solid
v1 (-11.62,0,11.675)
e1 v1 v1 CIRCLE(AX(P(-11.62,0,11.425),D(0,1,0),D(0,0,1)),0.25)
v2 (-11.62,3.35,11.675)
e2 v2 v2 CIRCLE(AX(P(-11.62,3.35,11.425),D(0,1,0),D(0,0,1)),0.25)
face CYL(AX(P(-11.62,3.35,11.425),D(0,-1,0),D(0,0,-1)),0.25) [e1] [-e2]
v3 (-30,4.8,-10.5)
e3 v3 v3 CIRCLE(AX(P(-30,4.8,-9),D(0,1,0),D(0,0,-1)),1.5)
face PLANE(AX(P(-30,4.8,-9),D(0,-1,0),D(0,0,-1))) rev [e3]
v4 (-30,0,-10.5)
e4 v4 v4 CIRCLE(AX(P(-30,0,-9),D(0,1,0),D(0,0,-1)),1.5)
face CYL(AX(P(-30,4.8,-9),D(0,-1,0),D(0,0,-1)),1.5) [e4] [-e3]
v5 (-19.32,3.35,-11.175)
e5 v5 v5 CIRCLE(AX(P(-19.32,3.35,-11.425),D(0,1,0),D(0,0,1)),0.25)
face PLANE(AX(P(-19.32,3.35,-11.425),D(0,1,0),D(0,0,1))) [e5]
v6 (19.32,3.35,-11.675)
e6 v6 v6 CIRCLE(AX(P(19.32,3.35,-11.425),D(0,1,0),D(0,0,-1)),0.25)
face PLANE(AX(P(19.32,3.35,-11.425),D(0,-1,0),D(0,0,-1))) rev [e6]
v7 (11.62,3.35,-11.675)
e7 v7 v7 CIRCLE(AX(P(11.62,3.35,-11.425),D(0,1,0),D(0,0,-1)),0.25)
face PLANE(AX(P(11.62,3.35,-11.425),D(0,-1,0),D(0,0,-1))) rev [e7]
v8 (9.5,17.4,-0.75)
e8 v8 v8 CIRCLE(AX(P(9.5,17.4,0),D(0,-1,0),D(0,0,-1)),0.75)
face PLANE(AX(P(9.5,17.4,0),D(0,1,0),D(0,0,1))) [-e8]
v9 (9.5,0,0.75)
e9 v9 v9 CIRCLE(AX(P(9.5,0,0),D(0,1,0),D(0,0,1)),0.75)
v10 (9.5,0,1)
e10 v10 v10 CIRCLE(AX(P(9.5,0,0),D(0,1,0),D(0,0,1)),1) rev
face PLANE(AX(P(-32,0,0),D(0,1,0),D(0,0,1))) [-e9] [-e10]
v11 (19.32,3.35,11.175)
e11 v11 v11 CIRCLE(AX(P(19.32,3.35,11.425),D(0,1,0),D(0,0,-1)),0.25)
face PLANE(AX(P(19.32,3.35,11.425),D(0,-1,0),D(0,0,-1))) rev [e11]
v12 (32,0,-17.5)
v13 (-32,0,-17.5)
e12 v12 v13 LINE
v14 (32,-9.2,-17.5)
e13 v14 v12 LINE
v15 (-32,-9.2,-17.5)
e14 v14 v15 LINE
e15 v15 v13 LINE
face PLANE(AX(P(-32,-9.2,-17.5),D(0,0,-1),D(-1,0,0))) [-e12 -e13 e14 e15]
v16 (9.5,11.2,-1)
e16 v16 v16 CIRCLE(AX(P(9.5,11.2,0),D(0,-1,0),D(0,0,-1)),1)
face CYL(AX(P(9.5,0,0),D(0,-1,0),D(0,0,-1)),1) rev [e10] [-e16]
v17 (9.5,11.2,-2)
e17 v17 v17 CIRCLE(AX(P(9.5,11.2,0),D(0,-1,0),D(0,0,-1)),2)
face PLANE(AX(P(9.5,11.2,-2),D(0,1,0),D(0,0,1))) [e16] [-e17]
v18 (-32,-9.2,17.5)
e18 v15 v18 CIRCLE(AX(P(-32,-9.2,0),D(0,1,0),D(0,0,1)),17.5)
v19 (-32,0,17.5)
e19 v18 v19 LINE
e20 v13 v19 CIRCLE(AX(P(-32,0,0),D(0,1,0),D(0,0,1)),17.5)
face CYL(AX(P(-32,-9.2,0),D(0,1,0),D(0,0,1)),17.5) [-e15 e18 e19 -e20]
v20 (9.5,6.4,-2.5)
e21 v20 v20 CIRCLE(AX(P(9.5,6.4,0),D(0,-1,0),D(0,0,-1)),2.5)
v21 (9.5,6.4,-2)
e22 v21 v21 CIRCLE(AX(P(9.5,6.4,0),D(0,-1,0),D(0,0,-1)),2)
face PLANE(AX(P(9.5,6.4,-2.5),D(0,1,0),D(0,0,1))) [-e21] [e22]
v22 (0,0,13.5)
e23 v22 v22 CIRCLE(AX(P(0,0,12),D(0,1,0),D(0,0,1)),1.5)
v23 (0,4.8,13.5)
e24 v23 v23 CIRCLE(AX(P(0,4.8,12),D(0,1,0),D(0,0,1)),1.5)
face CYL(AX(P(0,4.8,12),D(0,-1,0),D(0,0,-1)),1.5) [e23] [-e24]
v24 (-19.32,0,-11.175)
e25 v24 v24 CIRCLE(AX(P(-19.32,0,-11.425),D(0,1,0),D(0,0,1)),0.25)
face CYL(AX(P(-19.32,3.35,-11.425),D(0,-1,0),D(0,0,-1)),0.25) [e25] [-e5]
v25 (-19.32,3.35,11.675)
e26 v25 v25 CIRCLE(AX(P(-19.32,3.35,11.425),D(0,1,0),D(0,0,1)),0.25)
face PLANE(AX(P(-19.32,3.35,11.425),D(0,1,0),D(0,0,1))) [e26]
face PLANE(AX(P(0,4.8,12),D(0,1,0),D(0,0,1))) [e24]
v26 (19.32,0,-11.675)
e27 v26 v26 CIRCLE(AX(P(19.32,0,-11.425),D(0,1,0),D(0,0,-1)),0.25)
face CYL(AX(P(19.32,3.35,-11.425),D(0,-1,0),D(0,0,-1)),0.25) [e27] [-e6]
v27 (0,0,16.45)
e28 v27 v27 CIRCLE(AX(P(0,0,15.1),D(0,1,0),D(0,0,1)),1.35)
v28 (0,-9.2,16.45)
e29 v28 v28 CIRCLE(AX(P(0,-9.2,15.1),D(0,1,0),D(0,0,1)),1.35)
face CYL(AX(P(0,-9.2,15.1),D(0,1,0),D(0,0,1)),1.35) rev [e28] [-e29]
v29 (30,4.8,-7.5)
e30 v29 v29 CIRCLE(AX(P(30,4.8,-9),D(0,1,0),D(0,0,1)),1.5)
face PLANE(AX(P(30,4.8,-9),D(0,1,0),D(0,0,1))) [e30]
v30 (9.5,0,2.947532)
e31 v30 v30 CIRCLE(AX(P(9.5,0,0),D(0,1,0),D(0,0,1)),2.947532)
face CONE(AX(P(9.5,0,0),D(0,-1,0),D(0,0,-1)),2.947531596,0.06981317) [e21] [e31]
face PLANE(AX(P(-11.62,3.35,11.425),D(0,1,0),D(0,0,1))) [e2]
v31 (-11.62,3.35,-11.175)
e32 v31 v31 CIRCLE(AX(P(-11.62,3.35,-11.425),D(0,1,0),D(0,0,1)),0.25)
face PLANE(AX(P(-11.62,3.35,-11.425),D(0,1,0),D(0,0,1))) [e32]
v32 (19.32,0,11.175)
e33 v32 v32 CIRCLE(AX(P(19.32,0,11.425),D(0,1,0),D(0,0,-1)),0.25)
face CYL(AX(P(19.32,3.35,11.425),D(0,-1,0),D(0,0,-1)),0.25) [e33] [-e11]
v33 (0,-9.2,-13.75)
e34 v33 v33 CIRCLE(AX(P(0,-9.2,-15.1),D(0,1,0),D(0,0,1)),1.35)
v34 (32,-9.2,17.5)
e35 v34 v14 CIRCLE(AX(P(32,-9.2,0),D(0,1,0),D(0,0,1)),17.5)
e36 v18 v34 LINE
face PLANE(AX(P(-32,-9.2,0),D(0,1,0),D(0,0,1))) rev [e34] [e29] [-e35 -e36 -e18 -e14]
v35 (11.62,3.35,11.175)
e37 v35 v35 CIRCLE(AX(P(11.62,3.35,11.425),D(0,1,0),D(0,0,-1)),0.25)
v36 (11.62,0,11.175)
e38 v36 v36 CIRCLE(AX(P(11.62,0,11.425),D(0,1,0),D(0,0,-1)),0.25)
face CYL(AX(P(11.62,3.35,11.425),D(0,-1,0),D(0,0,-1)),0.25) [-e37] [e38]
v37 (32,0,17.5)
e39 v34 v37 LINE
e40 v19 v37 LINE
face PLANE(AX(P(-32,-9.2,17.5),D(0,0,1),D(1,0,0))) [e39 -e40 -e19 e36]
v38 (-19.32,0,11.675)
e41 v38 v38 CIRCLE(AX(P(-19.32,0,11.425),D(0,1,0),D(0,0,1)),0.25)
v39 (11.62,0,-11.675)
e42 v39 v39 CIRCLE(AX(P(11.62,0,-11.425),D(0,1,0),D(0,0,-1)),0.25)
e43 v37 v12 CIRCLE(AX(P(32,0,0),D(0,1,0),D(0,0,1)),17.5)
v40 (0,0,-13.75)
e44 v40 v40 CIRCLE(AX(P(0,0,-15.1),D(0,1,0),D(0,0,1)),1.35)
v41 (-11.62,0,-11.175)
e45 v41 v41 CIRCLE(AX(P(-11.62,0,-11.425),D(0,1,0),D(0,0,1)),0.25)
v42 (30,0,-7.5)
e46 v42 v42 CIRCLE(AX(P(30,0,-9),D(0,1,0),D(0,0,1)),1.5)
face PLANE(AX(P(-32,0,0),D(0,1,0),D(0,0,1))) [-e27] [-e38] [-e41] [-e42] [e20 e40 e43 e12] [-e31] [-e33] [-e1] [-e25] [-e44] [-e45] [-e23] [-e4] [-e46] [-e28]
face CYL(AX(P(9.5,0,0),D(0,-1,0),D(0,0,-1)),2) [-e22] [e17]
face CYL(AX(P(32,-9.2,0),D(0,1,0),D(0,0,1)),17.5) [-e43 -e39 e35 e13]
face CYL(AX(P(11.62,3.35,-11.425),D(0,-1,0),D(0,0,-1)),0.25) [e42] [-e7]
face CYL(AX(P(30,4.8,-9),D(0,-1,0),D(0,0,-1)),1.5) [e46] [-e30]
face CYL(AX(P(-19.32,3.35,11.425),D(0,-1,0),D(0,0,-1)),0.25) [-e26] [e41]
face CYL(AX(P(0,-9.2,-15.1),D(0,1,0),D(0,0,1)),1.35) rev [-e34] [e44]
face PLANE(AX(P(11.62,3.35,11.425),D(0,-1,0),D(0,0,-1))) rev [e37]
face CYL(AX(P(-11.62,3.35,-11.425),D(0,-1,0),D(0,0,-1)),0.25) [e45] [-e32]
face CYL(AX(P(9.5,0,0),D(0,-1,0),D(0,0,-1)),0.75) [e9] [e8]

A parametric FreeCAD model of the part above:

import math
import FreeCAD as App
import Part
import Sketcher

V = App.Vector
Q = App.Units.Quantity


def add_polygon(sketch, points):
    """Adds a closed chain of lines whose ends are joined by coincident constraints."""
    first, n = sketch.GeometryCount, len(points)
    for a, b in zip(points, points[1:] + points[:1]):
        sketch.addGeometry(Part.LineSegment(App.Vector(*a, 0), App.Vector(*b, 0)), False)
    for i in range(n):
        sketch.addConstraint(Sketcher.Constraint("Coincident", first + i, 2, first + (i + 1) % n, 1))

doc = App.newDocument("Part")
body = doc.addObject("PartDesign::Body", "Body")

sketch1 = body.newObject("Sketcher::SketchObject", "Sketch")
sketch1.AttachmentSupport = (doc.getObject("XZ_Plane"), [""])
sketch1.MapMode = "FlatFace"
sketch1.addGeometry([
    Part.LineSegment(V(32, -18, 0), V(-32, -18, 0)),
    Part.ArcOfCircle(Part.Circle(V(-32, 0, 0), V(0, 0, 1), 18), math.radians(90), math.radians(270)),
    Part.LineSegment(V(-32, 18, 0), V(32, 18, 0)),
    Part.ArcOfCircle(Part.Circle(V(32, 0, 0), V(0, 0, 1), 18), math.radians(-90), math.radians(90)),
], False)
sketch1.addConstraint([
    Sketcher.Constraint("Tangent", 0, 2, 1, 2),
    Sketcher.Constraint("Tangent", 1, 1, 2, 1),
    Sketcher.Constraint("Tangent", 2, 2, 3, 2),
    Sketcher.Constraint("Tangent", 3, 1, 0, 1),
    Sketcher.Constraint("Horizontal", 0),
    Sketcher.Constraint("Horizontal", 2),
    Sketcher.Constraint("Symmetric", 1, 3, 3, 3, -1, 1),
    Sketcher.Constraint("Radius", 1, Q("17.5 mm")),
    Sketcher.Constraint("DistanceX", 0, 2, 0, 1, Q("64 mm")),
])
pad1 = body.newObject("PartDesign::Pad", "Pad")
pad1.Profile = sketch1
pad1.Length = 9.2

sketch2 = body.newObject("Sketcher::SketchObject", "Sketch001")
sketch2.AttachmentSupport = (doc.getObject("YZ_Plane"), [""])
sketch2.MapMode = "FlatFace"
sketch2.AttachmentOffset = App.Placement(V(0, 0, 9.5), App.Rotation())
add_polygon(sketch2, [(17.4, 0), (0, 0), (0, -0.8), (17.4, -0.8)])
add_polygon(sketch2, [(0, -1), (0, -2.9), (6.4, -2.5), (6.4, -2), (11.2, -2), (11.2, -1)])
sketch2.addConstraint([
    Sketcher.Constraint("Horizontal", 0),
    Sketcher.Constraint("Vertical", 1),
    Sketcher.Constraint("Horizontal", 2),
    Sketcher.Constraint("Vertical", 3),
    Sketcher.Constraint("Vertical", 4),
    Sketcher.Constraint("Vertical", 6),
    Sketcher.Constraint("Horizontal", 7),
    Sketcher.Constraint("Vertical", 8),
    Sketcher.Constraint("Horizontal", 9),
    Sketcher.Constraint("Coincident", 0, 2, -1, 1),
    Sketcher.Constraint("PointOnObject", 4, 2, -2),
    Sketcher.Constraint("DistanceY", 8, 1, 8, 2, Q("1 mm")),
    Sketcher.Constraint("Angle", 5, Q("4 deg")),
    Sketcher.Constraint("DistanceX", 0, 2, 0, 1, Q("17.4 mm")),
    Sketcher.Constraint("DistanceX", 7, 1, 7, 2, Q("4.8 mm")),
    Sketcher.Constraint("DistanceX", 9, 2, 9, 1, Q("11.2 mm")),
    Sketcher.Constraint("DistanceY", 6, 1, 6, 2, Q("0.5 mm")),
    Sketcher.Constraint("DistanceY", 6, 2, -1, 1, Q("2 mm")),
    Sketcher.Constraint("DistanceY", 1, 2, 1, 1, Q("0.75 mm")),
])
revolution = body.newObject("PartDesign::Revolution", "Revolution")
revolution.Profile = sketch2
revolution.ReferenceAxis = (sketch2, ["H_Axis"])
revolution.Angle = 360

sketch3 = body.newObject("Sketcher::SketchObject", "Sketch002")
sketch3.AttachmentSupport = (doc.getObject("XZ_Plane"), [""])
sketch3.MapMode = "FlatFace"
sketch3.addGeometry([
    Part.Circle(V(0, 12, 0), V(0, 0, 1), 1.5),
    Part.Circle(V(30, -9, 0), V(0, 0, 1), 1.5),
    Part.Circle(V(-30, -9, 0), V(0, 0, 1), 1.5),
], False)
sketch3.addConstraint([
    Sketcher.Constraint("Equal", 0, 1),
    Sketcher.Constraint("Equal", 1, 2),
    Sketcher.Constraint("Symmetric", 1, 3, 2, 3, -2),
    Sketcher.Constraint("PointOnObject", 0, 3, -2),
    Sketcher.Constraint("Diameter", 0, Q("3 mm")),
    Sketcher.Constraint("DistanceY", -1, 1, 0, 3, Q("12 mm")),
    Sketcher.Constraint("DistanceX", -1, 1, 1, 3, Q("30 mm")),
    Sketcher.Constraint("DistanceY", 1, 3, -1, 1, Q("9 mm")),
])
pad2 = body.newObject("PartDesign::Pad", "Pad001")
pad2.Profile = sketch3
pad2.Length = 4.8
pad2.Reversed = True

sketch4 = body.newObject("Sketcher::SketchObject", "Sketch003")
sketch4.AttachmentSupport = (doc.getObject("XZ_Plane"), [""])
sketch4.MapMode = "FlatFace"
sketch4.addGeometry([
    Part.Circle(V(-19.32, -11.43, 0), V(0, 0, 1), 0.25),
    Part.Circle(V(-11.62, -11.43, 0), V(0, 0, 1), 0.25),
    Part.Circle(V(-11.62, 11.43, 0), V(0, 0, 1), 0.25),
    Part.Circle(V(-19.32, 11.43, 0), V(0, 0, 1), 0.25),
    Part.Circle(V(19.32, 11.43, 0), V(0, 0, 1), 0.25),
    Part.Circle(V(11.62, 11.43, 0), V(0, 0, 1), 0.25),
    Part.Circle(V(11.62, -11.43, 0), V(0, 0, 1), 0.25),
    Part.Circle(V(19.32, -11.43, 0), V(0, 0, 1), 0.25),
], False)
sketch4.addConstraint([
    Sketcher.Constraint("Equal", 0, 1),
    Sketcher.Constraint("Equal", 1, 2),
    Sketcher.Constraint("Equal", 2, 3),
    Sketcher.Constraint("Equal", 3, 4),
    Sketcher.Constraint("Equal", 4, 5),
    Sketcher.Constraint("Equal", 5, 6),
    Sketcher.Constraint("Equal", 6, 7),
    Sketcher.Constraint("Symmetric", 0, 3, 4, 3, -1, 1),
    Sketcher.Constraint("Symmetric", 1, 3, 5, 3, -1, 1),
    Sketcher.Constraint("Symmetric", 2, 3, 6, 3, -1, 1),
    Sketcher.Constraint("Symmetric", 3, 3, 7, 3, -1, 1),
    Sketcher.Constraint("Symmetric", 3, 3, 4, 3, -2),
    Sketcher.Constraint("Symmetric", 2, 3, 5, 3, -2),
    Sketcher.Constraint("Horizontal", 0, 3, 1, 3),
    Sketcher.Constraint("Diameter", 0, Q("0.5 mm")),
    Sketcher.Constraint("DistanceX", 0, 3, 1, 3, Q("7.7 mm")),
    Sketcher.Constraint("DistanceX", 0, 3, -1, 1, Q("19.32 mm")),
    Sketcher.Constraint("DistanceY", 1, 3, 2, 3, Q("22.85 mm")),
])
pad3 = body.newObject("PartDesign::Pad", "Pad002")
pad3.Profile = sketch4
pad3.Length = 3.35
pad3.Reversed = True

sketch5 = body.newObject("Sketcher::SketchObject", "Sketch004")
sketch5.AttachmentSupport = (doc.getObject("XZ_Plane"), [""])
sketch5.MapMode = "FlatFace"
sketch5.addGeometry([
    Part.Circle(V(0, -15.1, 0), V(0, 0, 1), 1.4),
    Part.Circle(V(0, 15.1, 0), V(0, 0, 1), 1.4),
], False)
sketch5.addConstraint([
    Sketcher.Constraint("Equal", 0, 1),
    Sketcher.Constraint("Symmetric", 0, 3, 1, 3, -1, 1),
    Sketcher.Constraint("PointOnObject", 0, 3, -2),
    Sketcher.Constraint("Diameter", 0, Q("2.7 mm")),
    Sketcher.Constraint("DistanceY", 0, 3, -1, 1, Q("15.1 mm")),
])
pocket1 = body.newObject("PartDesign::Pocket", "Pocket")
pocket1.Profile = sketch5
pocket1.Type = "ThroughAll"
pocket1.Reversed = True

doc.recompute()
